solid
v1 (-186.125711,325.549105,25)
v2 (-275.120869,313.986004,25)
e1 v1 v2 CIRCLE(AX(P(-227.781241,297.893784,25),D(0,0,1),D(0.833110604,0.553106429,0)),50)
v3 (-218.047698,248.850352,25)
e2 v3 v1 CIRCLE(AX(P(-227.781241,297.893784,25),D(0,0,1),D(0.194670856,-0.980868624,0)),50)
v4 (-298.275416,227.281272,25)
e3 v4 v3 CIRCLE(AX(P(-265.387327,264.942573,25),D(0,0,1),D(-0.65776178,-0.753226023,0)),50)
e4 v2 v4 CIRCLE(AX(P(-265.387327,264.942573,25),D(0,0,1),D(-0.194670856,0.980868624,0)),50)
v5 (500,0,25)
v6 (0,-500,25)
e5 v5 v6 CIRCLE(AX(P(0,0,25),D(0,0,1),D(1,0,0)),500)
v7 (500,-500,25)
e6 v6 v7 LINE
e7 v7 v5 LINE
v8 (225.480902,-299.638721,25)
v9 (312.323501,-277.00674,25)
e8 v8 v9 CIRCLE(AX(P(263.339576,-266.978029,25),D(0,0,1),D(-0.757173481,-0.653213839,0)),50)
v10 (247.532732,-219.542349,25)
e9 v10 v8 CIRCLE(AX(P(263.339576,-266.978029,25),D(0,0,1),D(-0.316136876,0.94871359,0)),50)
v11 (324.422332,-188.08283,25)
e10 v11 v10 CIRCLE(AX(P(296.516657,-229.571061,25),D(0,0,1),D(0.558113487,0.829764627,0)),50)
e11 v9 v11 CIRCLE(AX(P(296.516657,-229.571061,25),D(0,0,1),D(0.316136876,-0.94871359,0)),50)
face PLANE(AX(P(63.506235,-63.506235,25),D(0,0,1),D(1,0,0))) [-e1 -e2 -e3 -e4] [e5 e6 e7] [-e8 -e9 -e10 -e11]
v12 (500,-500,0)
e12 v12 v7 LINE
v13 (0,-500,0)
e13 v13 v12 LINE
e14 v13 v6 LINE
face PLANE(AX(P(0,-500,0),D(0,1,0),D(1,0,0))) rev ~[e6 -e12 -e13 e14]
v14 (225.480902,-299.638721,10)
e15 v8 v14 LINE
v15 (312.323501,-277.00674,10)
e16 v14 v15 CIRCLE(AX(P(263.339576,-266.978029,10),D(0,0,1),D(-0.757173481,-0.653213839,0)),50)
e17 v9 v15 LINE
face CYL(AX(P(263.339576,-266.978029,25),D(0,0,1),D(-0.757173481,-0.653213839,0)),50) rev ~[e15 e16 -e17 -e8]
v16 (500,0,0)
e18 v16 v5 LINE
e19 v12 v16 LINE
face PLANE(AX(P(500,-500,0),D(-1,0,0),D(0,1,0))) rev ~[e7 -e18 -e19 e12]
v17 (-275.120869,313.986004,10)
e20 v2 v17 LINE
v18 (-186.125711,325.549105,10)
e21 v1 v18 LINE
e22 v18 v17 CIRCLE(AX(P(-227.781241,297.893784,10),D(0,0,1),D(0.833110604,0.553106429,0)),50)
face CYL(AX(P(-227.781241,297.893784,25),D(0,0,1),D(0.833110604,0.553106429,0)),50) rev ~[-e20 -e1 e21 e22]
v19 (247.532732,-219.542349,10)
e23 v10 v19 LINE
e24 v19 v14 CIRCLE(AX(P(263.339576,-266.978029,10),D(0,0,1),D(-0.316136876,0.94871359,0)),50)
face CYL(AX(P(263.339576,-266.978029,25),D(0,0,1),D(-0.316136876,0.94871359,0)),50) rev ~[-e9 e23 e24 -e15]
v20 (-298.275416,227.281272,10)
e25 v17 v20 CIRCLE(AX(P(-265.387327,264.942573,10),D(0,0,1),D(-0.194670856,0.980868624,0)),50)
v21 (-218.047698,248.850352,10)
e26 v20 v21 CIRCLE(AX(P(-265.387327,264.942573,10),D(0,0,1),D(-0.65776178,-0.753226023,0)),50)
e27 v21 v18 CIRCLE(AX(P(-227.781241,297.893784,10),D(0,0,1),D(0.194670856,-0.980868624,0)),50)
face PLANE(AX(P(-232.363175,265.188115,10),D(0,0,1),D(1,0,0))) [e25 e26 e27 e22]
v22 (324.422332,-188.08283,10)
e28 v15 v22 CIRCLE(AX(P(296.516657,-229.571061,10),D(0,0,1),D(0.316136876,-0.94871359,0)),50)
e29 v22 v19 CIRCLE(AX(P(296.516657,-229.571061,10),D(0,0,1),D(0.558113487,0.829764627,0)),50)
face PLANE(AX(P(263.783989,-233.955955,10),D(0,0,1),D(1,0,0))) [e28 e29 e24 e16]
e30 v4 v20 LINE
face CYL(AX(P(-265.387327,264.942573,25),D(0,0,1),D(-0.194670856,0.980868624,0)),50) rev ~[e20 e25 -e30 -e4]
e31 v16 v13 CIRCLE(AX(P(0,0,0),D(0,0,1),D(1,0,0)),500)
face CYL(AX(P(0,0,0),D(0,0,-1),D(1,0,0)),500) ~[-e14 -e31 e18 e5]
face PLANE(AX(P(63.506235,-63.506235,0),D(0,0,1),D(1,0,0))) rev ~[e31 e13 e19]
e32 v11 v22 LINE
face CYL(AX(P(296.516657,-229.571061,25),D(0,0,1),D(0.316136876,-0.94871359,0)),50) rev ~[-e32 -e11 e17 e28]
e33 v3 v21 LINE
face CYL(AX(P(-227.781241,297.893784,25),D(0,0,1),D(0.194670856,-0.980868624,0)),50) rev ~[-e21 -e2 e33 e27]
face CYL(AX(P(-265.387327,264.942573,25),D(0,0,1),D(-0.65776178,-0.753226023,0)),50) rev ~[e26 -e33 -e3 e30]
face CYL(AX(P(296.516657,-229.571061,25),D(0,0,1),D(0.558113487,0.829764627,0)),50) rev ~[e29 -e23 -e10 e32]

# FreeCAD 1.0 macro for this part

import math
import FreeCAD as App
import Part
import Sketcher
from FreeCAD import Vector
Q = App.Units.Quantity

doc = App.newDocument("Part")
body = doc.addObject("PartDesign::Body", "Body")

# Sketch on XY plane
sketch1 = body.newObject("Sketcher::SketchObject", "Sketch")
sketch1.AttachmentSupport = (doc.getObject("XY_Plane"), [""])
sketch1.MapMode = "FlatFace"
sketch1.addGeometry(Part.LineSegment(Vector(500, -500, 0), Vector(500, 0, 0)), False)
sketch1.addGeometry(Part.ArcOfCircle(Part.Circle(Vector(0, 0, 0), Vector(0, 0, 1), 500), math.radians(0), math.radians(270)), False)
sketch1.addGeometry(Part.LineSegment(Vector(0, -500, 0), Vector(500, -500, 0)), False)
sketch1.addConstraint(Sketcher.Constraint("Tangent", 0, 2, 1, 1))
sketch1.addConstraint(Sketcher.Constraint("Tangent", 1, 2, 2, 1))
sketch1.addConstraint(Sketcher.Constraint("Coincident", 2, 2, 0, 1))
sketch1.addConstraint(Sketcher.Constraint("Vertical", 0))
sketch1.addConstraint(Sketcher.Constraint("Horizontal", 2))
sketch1.addConstraint(Sketcher.Constraint("Coincident", 1, 3, -1, 1))
sketch1.addConstraint(Sketcher.Constraint("Radius", 1, Q("500 mm")))
pad1 = body.newObject("PartDesign::Pad", "Pad")
pad1.Profile = sketch1
pad1.Length = 25

# Sketch on XY plane
sketch2 = body.newObject("Sketcher::SketchObject", "Sketch001")
sketch2.AttachmentSupport = (doc.getObject("XY_Plane"), [""])
sketch2.MapMode = "FlatFace"
sketch2.AttachmentOffset = App.Placement(Vector(0, 0, 25), App.Rotation())
sketch2.addGeometry(Part.ArcOfCircle(Part.Circle(Vector(-265, 265, 0), Vector(0, 0, 1), 50), math.radians(-131), math.radians(-19)), False)
sketch2.addGeometry(Part.ArcOfCircle(Part.Circle(Vector(-228, 298, 0), Vector(0, 0, 1), 50), math.radians(-79), math.radians(34)), False)
sketch2.addGeometry(Part.ArcOfCircle(Part.Circle(Vector(-228, 298, 0), Vector(0, 0, 1), 50), math.radians(34), math.radians(161)), False)
sketch2.addGeometry(Part.ArcOfCircle(Part.Circle(Vector(-265, 265, 0), Vector(0, 0, 1), 50), math.radians(101), math.radians(229)), False)
sketch2.addGeometry(Part.ArcOfCircle(Part.Circle(Vector(263, -267, 0), Vector(0, 0, 1), 50), math.radians(108), math.radians(221)), False)
sketch2.addGeometry(Part.ArcOfCircle(Part.Circle(Vector(263, -267, 0), Vector(0, 0, 1), 50), math.radians(-139), math.radians(-12)), False)
sketch2.addGeometry(Part.ArcOfCircle(Part.Circle(Vector(297, -230, 0), Vector(0, 0, 1), 50), math.radians(-72), math.radians(56)), False)
sketch2.addGeometry(Part.ArcOfCircle(Part.Circle(Vector(297, -230, 0), Vector(0, 0, 1), 50), math.radians(56), math.radians(168)), False)
sketch2.addConstraint(Sketcher.Constraint("Coincident", 0, 2, 1, 1))
sketch2.addConstraint(Sketcher.Constraint("Tangent", 1, 2, 2, 1))
sketch2.addConstraint(Sketcher.Constraint("Coincident", 2, 2, 3, 1))
sketch2.addConstraint(Sketcher.Constraint("Tangent", 3, 2, 0, 1))
sketch2.addConstraint(Sketcher.Constraint("Tangent", 4, 2, 5, 1))
sketch2.addConstraint(Sketcher.Constraint("Coincident", 5, 2, 6, 1))
sketch2.addConstraint(Sketcher.Constraint("Tangent", 6, 2, 7, 1))
sketch2.addConstraint(Sketcher.Constraint("Coincident", 7, 2, 4, 1))
sketch2.addConstraint(Sketcher.Constraint("Equal", 0, 1))
sketch2.addConstraint(Sketcher.Constraint("Equal", 1, 2))
sketch2.addConstraint(Sketcher.Constraint("Equal", 2, 3))
sketch2.addConstraint(Sketcher.Constraint("Equal", 3, 4))
sketch2.addConstraint(Sketcher.Constraint("Equal", 4, 5))
sketch2.addConstraint(Sketcher.Constraint("Equal", 5, 6))
sketch2.addConstraint(Sketcher.Constraint("Equal", 6, 7))
sketch2.addConstraint(Sketcher.Constraint("Radius", 0, Q("50 mm")))
sketch2.addConstraint(Sketcher.Constraint("DistanceX", -1, 1, 4, 2, Q("225.480902 mm")))
sketch2.addConstraint(Sketcher.Constraint("DistanceX", -1, 1, 5, 2, Q("312.323501 mm")))
sketch2.addConstraint(Sketcher.Constraint("DistanceY", 4, 3, 0, 3, Q("531.920602 mm")))
sketch2.addConstraint(Sketcher.Constraint("DistanceY", 3, 2, 0, 3, Q("37.661301 mm")))
sketch2.addConstraint(Sketcher.Constraint("DistanceX", 0, 2, 4, 2, Q("443.528599 mm")))
sketch2.addConstraint(Sketcher.Constraint("DistanceY", 4, 3, 6, 2, Q("78.895199 mm")))
sketch2.addConstraint(Sketcher.Constraint("DistanceX", 1, 3, -1, 1, Q("227.781241 mm")))
sketch2.addConstraint(Sketcher.Constraint("DistanceY", 4, 3, -1, 1, Q("266.978029 mm")))
sketch2.addConstraint(Sketcher.Constraint("DistanceY", 6, 3, -1, 1, Q("229.571061 mm")))
sketch2.addConstraint(Sketcher.Constraint("DistanceX", 1, 2, -1, 1, Q("186.125711 mm")))
sketch2.addConstraint(Sketcher.Constraint("DistanceX", 2, 2, -1, 1, Q("275.120869 mm")))
sketch2.addConstraint(Sketcher.Constraint("DistanceY", 5, 2, -1, 1, Q("277.00674 mm")))
pocket1 = body.newObject("PartDesign::Pocket", "Pocket")
pocket1.Profile = sketch2
pocket1.Length = 15

doc.recompute()
